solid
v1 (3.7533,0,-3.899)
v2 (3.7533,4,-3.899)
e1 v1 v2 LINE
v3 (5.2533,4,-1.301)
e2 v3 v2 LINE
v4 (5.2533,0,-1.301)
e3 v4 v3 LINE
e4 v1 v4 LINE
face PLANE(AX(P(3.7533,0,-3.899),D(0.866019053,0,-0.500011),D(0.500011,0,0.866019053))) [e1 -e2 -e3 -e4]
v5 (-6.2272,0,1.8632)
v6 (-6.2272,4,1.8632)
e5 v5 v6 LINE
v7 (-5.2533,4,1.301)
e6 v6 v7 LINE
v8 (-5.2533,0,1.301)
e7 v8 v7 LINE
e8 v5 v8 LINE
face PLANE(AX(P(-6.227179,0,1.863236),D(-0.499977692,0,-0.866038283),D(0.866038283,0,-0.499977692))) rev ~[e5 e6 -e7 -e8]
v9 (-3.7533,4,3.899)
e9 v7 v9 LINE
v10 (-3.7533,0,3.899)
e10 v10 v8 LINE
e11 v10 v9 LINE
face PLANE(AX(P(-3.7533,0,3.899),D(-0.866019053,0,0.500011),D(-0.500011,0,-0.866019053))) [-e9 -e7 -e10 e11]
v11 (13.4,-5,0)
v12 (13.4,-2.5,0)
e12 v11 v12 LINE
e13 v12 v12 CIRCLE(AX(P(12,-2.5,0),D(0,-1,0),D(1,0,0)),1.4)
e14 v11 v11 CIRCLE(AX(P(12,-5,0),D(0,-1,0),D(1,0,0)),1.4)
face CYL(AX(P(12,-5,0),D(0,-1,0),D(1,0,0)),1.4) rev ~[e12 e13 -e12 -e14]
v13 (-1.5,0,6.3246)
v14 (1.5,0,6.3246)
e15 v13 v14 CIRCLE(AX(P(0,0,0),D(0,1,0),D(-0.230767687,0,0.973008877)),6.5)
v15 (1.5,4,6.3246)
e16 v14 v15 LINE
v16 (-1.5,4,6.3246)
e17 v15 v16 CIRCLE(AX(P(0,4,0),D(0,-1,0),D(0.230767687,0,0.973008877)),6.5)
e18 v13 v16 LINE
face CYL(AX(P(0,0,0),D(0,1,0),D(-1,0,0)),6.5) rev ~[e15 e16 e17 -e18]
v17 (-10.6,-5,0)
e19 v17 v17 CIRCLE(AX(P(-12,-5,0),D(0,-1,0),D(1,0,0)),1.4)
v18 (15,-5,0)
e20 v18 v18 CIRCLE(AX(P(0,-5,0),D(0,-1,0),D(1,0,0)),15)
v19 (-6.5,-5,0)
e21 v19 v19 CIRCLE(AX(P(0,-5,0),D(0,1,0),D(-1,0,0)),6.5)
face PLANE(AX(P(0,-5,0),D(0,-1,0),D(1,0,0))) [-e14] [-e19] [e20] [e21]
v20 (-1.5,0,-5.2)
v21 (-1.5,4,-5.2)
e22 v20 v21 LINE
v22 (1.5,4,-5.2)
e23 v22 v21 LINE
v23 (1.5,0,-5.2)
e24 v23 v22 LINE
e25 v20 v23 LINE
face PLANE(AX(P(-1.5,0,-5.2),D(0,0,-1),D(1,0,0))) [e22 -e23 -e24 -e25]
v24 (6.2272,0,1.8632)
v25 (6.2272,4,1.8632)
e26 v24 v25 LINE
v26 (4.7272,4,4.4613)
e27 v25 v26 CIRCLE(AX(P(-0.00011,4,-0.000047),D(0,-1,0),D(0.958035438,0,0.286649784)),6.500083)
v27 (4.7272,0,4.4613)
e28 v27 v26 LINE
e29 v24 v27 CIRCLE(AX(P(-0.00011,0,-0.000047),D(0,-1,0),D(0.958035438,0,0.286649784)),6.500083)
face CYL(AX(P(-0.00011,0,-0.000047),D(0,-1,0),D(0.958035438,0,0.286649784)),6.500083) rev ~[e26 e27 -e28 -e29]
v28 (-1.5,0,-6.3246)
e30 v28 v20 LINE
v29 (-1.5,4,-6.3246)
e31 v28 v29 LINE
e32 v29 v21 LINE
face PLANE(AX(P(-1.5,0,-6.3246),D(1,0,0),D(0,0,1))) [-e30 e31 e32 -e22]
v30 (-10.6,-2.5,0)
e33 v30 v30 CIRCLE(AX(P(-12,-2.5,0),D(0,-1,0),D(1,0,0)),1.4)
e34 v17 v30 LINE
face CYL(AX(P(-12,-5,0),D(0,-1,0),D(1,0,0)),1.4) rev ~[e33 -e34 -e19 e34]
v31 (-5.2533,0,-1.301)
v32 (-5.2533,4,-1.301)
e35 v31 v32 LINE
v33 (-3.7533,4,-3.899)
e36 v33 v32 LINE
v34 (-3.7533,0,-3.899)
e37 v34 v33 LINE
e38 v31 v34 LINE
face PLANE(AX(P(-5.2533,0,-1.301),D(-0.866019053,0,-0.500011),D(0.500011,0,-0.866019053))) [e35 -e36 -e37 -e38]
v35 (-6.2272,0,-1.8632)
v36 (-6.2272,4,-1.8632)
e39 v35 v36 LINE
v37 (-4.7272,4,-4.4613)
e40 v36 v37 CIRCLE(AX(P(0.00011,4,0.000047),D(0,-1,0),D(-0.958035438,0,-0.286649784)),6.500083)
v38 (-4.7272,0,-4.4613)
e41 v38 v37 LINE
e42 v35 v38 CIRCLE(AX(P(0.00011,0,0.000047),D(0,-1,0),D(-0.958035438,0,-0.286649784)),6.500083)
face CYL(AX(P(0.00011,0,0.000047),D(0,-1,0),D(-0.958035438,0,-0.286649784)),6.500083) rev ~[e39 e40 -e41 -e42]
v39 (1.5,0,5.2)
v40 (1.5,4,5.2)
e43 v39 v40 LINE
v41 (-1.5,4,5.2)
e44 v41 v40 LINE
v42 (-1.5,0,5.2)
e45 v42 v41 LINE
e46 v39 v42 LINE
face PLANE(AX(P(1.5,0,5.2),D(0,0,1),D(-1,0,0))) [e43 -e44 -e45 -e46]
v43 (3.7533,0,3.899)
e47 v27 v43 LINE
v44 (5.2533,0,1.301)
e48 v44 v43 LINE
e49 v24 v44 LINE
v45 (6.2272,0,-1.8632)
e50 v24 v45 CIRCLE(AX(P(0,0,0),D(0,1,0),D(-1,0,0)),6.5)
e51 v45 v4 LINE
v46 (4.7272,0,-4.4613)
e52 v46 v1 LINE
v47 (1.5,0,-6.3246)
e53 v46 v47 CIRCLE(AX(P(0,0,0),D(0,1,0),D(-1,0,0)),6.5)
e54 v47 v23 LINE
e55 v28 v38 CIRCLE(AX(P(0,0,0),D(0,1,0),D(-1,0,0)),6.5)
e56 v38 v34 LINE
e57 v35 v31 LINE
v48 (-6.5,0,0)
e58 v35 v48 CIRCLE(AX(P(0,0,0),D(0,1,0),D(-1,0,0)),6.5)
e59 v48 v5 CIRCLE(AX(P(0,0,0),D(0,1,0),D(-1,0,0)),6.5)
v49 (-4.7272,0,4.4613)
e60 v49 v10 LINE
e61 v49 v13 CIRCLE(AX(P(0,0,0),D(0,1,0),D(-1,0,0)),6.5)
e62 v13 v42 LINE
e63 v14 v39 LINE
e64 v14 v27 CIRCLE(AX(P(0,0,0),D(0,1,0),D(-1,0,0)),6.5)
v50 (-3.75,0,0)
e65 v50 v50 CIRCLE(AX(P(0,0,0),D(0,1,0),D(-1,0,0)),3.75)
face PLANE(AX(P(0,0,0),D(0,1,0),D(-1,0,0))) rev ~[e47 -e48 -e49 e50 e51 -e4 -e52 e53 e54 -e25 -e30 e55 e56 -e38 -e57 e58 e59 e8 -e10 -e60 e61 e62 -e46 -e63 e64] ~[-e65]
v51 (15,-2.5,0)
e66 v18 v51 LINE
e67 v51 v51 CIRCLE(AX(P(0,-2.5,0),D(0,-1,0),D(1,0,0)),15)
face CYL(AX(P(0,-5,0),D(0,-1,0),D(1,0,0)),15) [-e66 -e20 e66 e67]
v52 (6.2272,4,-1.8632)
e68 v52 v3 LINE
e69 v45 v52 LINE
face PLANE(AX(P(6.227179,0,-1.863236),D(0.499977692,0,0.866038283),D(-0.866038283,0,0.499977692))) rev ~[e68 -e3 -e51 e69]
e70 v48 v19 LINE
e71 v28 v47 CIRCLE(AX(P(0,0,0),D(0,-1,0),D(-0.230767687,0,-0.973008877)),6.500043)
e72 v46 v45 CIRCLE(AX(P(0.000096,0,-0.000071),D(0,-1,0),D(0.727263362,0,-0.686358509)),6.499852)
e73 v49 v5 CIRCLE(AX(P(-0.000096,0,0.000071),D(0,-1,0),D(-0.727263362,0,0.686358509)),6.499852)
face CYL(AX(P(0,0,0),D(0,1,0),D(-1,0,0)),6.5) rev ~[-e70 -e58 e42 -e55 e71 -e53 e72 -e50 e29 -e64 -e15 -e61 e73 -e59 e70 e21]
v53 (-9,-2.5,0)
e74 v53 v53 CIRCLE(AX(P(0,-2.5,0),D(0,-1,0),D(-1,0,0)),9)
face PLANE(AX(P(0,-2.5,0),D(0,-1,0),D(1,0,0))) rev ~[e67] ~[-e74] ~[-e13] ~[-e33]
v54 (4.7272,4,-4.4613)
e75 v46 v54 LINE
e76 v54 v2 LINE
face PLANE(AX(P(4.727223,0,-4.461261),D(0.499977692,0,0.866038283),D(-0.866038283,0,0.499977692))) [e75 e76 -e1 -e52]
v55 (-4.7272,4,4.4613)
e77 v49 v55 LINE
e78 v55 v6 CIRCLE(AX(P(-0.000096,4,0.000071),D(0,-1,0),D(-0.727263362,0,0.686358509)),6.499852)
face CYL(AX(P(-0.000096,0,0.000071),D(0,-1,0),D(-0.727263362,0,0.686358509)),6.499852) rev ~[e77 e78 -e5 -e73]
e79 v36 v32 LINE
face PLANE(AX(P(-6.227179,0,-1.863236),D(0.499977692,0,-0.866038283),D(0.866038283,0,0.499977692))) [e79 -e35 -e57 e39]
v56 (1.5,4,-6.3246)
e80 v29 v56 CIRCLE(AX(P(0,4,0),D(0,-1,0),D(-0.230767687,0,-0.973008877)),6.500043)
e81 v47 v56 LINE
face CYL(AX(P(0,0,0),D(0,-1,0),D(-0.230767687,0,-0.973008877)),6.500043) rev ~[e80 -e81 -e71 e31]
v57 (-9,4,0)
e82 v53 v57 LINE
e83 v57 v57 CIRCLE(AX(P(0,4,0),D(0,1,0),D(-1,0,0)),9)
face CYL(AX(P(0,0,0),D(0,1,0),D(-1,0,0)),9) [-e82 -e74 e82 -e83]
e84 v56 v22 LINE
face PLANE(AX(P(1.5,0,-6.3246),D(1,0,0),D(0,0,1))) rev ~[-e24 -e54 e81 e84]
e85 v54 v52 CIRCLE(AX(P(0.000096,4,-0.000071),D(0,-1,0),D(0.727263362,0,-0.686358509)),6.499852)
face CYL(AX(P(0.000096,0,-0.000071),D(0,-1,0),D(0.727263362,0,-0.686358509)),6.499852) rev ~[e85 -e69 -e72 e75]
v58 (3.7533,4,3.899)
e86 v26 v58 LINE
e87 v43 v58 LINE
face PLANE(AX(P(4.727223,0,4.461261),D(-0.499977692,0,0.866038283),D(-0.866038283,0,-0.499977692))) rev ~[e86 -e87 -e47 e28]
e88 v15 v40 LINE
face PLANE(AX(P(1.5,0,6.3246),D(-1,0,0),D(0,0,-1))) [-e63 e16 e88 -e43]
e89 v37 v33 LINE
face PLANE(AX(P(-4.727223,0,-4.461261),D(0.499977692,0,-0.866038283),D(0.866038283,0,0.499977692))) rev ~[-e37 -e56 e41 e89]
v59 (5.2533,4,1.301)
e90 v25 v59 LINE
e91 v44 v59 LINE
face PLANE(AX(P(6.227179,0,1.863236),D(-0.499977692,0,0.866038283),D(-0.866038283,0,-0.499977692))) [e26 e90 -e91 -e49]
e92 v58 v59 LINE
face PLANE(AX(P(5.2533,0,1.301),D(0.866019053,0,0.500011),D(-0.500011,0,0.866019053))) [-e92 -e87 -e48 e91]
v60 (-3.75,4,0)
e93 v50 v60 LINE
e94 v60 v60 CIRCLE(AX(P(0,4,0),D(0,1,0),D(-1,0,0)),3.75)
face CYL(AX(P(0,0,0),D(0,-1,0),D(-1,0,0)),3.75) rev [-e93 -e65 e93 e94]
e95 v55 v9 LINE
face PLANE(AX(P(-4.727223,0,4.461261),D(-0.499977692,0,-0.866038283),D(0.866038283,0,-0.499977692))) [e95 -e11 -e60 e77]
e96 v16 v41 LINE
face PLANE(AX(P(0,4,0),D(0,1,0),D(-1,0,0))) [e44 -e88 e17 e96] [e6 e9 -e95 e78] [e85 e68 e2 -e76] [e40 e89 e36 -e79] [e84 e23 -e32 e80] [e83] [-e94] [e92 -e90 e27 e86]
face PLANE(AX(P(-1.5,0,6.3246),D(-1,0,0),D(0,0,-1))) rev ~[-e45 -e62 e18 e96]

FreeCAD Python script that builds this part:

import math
import FreeCAD as App
import Part
import Sketcher

V = App.Vector
Q = App.Units.Quantity

doc = App.newDocument("Part")
body = doc.addObject("PartDesign::Body", "Body")

# Sketch on XZ plane
sketch1 = body.newObject("Sketcher::SketchObject", "Sketch")
sketch1.AttachmentSupport = (doc.getObject("XZ_Plane"), [""])
sketch1.MapMode = "FlatFace"
sketch1.addGeometry(Part.Circle(V(0, 0, 0), V(0, 0, 1), 9), False)
sketch1.addGeometry(Part.Circle(V(0, 0, 0), V(0, 0, 1), 3.75), False)
sketch1.addConstraint(Sketcher.Constraint("Coincident", 0, 3, -1, 1))
sketch1.addConstraint(Sketcher.Constraint("Coincident", 1, 3, -1, 1))
sketch1.addConstraint(Sketcher.Constraint("Diameter", 1, Q("7.5 mm")))
sketch1.addConstraint(Sketcher.Constraint("Diameter", 0, Q("18 mm")))
pad1 = body.newObject("PartDesign::Pad", "Pad")
pad1.Profile = sketch1
pad1.Length = 4
pad1.Reversed = True

# Sketch on XZ plane
sketch2 = body.newObject("Sketcher::SketchObject", "Sketch001")
sketch2.AttachmentSupport = (doc.getObject("XZ_Plane"), [""])
sketch2.MapMode = "FlatFace"
sketch2.addGeometry(Part.Circle(V(0, 0, 0), V(0, 0, 1), 9), False)
sketch2.addGeometry(Part.Circle(V(0, 0, 0), V(0, 0, 1), 6.5), False)
sketch2.addConstraint(Sketcher.Constraint("Coincident", 0, 3, -1, 1))
sketch2.addConstraint(Sketcher.Constraint("Coincident", 1, 3, -1, 1))
sketch2.addConstraint(Sketcher.Constraint("Diameter", 1, Q("13 mm")))
sketch2.addConstraint(Sketcher.Constraint("Diameter", 0, Q("18 mm")))
pad2 = body.newObject("PartDesign::Pad", "Pad001")
pad2.Profile = sketch2
pad2.Length = 5

# Sketch on XZ plane
sketch3 = body.newObject("Sketcher::SketchObject", "Sketch002")
sketch3.AttachmentSupport = (doc.getObject("XZ_Plane"), [""])
sketch3.MapMode = "FlatFace"
sketch3.addGeometry(Part.LineSegment(V(5.2533, 1.301, 0), V(6.227179, 1.863236, 0)), False)
sketch3.addGeometry(Part.ArcOfCircle(Part.Circle(V(0, 0, 0), V(0, 0, 1), 6.500043), math.radians(16.657367), math.radians(43.342417)), False)
sketch3.addGeometry(Part.LineSegment(V(4.727223, 4.461261, 0), V(3.7533, 3.899, 0)), False)
sketch3.addGeometry(Part.LineSegment(V(3.7533, 3.899, 0), V(5.2533, 1.301, 0)), False)
sketch3.addGeometry(Part.ArcOfCircle(Part.Circle(V(0, 0, 0), V(0, 0, 1), 6.499964), math.radians(-43.342417), math.radians(-16.657367)), False)
sketch3.addGeometry(Part.LineSegment(V(6.227179, -1.863236, 0), V(5.2533, -1.301, 0)), False)
sketch3.addGeometry(Part.LineSegment(V(5.2533, -1.301, 0), V(3.7533, -3.899, 0)), False)
sketch3.addGeometry(Part.LineSegment(V(3.7533, -3.899, 0), V(4.727223, -4.461261, 0)), False)
sketch3.addGeometry(Part.LineSegment(V(1.5, 5.2, 0), V(1.5, 6.3246, 0)), False)
sketch3.addGeometry(Part.ArcOfCircle(Part.Circle(V(0, 0, 0), V(0, 0, 1), 6.5), math.radians(76.657727), math.radians(103.342273)), False)
sketch3.addGeometry(Part.LineSegment(V(-1.5, 6.3246, 0), V(-1.5, 5.2, 0)), False)
sketch3.addGeometry(Part.LineSegment(V(-1.5, 5.2, 0), V(1.5, 5.2, 0)), False)
sketch3.addGeometry(Part.ArcOfCircle(Part.Circle(V(0, 0, 0), V(0, 0, 1), 6.500043), math.radians(-103.342273), math.radians(-76.657727)), False)
sketch3.addGeometry(Part.LineSegment(V(1.5, -6.3246, 0), V(1.5, -5.2, 0)), False)
sketch3.addGeometry(Part.LineSegment(V(1.5, -5.2, 0), V(-1.5, -5.2, 0)), False)
sketch3.addGeometry(Part.LineSegment(V(-1.5, -5.2, 0), V(-1.5, -6.3246, 0)), False)
sketch3.addGeometry(Part.ArcOfCircle(Part.Circle(V(0, 0, 0), V(0, 0, 1), 6.500043), math.radians(-163.342633), math.radians(-136.657583)), False)
sketch3.addGeometry(Part.LineSegment(V(-4.727223, -4.461261, 0), V(-3.7533, -3.899, 0)), False)
sketch3.addGeometry(Part.LineSegment(V(-3.7533, -3.899, 0), V(-5.2533, -1.301, 0)), False)
sketch3.addGeometry(Part.LineSegment(V(-5.2533, -1.301, 0), V(-6.227179, -1.863236, 0)), False)
sketch3.addGeometry(Part.LineSegment(V(-3.7533, 3.899, 0), V(-4.727223, 4.461261, 0)), False)
sketch3.addGeometry(Part.ArcOfCircle(Part.Circle(V(0, 0, 0), V(0, 0, 1), 6.499964), math.radians(136.657583), math.radians(163.342633)), False)
sketch3.addGeometry(Part.LineSegment(V(-6.227179, 1.863236, 0), V(-5.2533, 1.301, 0)), False)
sketch3.addGeometry(Part.LineSegment(V(-5.2533, 1.301, 0), V(-3.7533, 3.899, 0)), False)
sketch3.addConstraint(Sketcher.Constraint("Coincident", 0, 2, 1, 1))
sketch3.addConstraint(Sketcher.Constraint("Coincident", 1, 2, 2, 1))
sketch3.addConstraint(Sketcher.Constraint("Coincident", 2, 2, 3, 1))
sketch3.addConstraint(Sketcher.Constraint("Coincident", 3, 2, 0, 1))
sketch3.addConstraint(Sketcher.Constraint("Coincident", 4, 2, 5, 1))
sketch3.addConstraint(Sketcher.Constraint("Coincident", 5, 2, 6, 1))
sketch3.addConstraint(Sketcher.Constraint("Coincident", 6, 2, 7, 1))
sketch3.addConstraint(Sketcher.Constraint("Coincident", 7, 2, 4, 1))
sketch3.addConstraint(Sketcher.Constraint("Coincident", 8, 2, 9, 1))
sketch3.addConstraint(Sketcher.Constraint("Coincident", 9, 2, 10, 1))
sketch3.addConstraint(Sketcher.Constraint("Coincident", 10, 2, 11, 1))
sketch3.addConstraint(Sketcher.Constraint("Coincident", 11, 2, 8, 1))
sketch3.addConstraint(Sketcher.Constraint("Coincident", 12, 2, 13, 1))
sketch3.addConstraint(Sketcher.Constraint("Coincident", 13, 2, 14, 1))
sketch3.addConstraint(Sketcher.Constraint("Coincident", 14, 2, 15, 1))
sketch3.addConstraint(Sketcher.Constraint("Coincident", 15, 2, 12, 1))
sketch3.addConstraint(Sketcher.Constraint("Coincident", 16, 2, 17, 1))
sketch3.addConstraint(Sketcher.Constraint("Coincident", 17, 2, 18, 1))
sketch3.addConstraint(Sketcher.Constraint("Coincident", 18, 2, 19, 1))
sketch3.addConstraint(Sketcher.Constraint("Coincident", 19, 2, 16, 1))
sketch3.addConstraint(Sketcher.Constraint("Coincident", 20, 2, 21, 1))
sketch3.addConstraint(Sketcher.Constraint("Coincident", 21, 2, 22, 1))
sketch3.addConstraint(Sketcher.Constraint("Coincident", 22, 2, 23, 1))
sketch3.addConstraint(Sketcher.Constraint("Coincident", 23, 2, 20, 1))
sketch3.addConstraint(Sketcher.Constraint("Vertical", 8))
sketch3.addConstraint(Sketcher.Constraint("Vertical", 10))
sketch3.addConstraint(Sketcher.Constraint("Horizontal", 11))
sketch3.addConstraint(Sketcher.Constraint("Vertical", 13))
sketch3.addConstraint(Sketcher.Constraint("Horizontal", 14))
sketch3.addConstraint(Sketcher.Constraint("Vertical", 15))
sketch3.addConstraint(Sketcher.Constraint("Coincident", 1, 3, -1, 1))
sketch3.addConstraint(Sketcher.Constraint("Coincident", 4, 3, -1, 1))
sketch3.addConstraint(Sketcher.Constraint("Coincident", 9, 3, -1, 1))
sketch3.addConstraint(Sketcher.Constraint("Coincident", 12, 3, -1, 1))
sketch3.addConstraint(Sketcher.Constraint("Coincident", 16, 3, -1, 1))
sketch3.addConstraint(Sketcher.Constraint("Coincident", 21, 3, -1, 1))
sketch3.addConstraint(Sketcher.Constraint("Equal", 1, 4))
sketch3.addConstraint(Sketcher.Constraint("Equal", 4, 9))
sketch3.addConstraint(Sketcher.Constraint("Equal", 9, 12))
sketch3.addConstraint(Sketcher.Constraint("Equal", 12, 16))
sketch3.addConstraint(Sketcher.Constraint("Equal", 16, 21))
sketch3.addConstraint(Sketcher.Constraint("Symmetric", 10, 2, 13, 2, -1, 1))
sketch3.addConstraint(Sketcher.Constraint("Symmetric", 2, 2, 17, 2, -1, 1))
sketch3.addConstraint(Sketcher.Constraint("Symmetric", 3, 2, 18, 2, -1, 1))
sketch3.addConstraint(Sketcher.Constraint("Symmetric", 5, 2, 22, 2, -1, 1))
sketch3.addConstraint(Sketcher.Constraint("Symmetric", 6, 2, 23, 2, -1, 1))
sketch3.addConstraint(Sketcher.Constraint("Symmetric", 6, 2, 17, 2, -2))
sketch3.addConstraint(Sketcher.Constraint("Symmetric", 5, 2, 18, 2, -2))
sketch3.addConstraint(Sketcher.Constraint("Parallel", 0, 2))
sketch3.addConstraint(Sketcher.Constraint("Perpendicular", 2, 3))
sketch3.addConstraint(Sketcher.Constraint("Perpendicular", 5, 6))
sketch3.addConstraint(Sketcher.Constraint("Perpendicular", 6, 7))
sketch3.addConstraint(Sketcher.Constraint("Perpendicular", 3, 17))
sketch3.addConstraint(Sketcher.Constraint("Perpendicular", 18, 19))
sketch3.addConstraint(Sketcher.Constraint("Parallel", 7, 20))
sketch3.addConstraint(Sketcher.Constraint("Parallel", 20, 22))
sketch3.addConstraint(Sketcher.Constraint("Horizontal", 8, 2, 9, 2))
sketch3.addConstraint(Sketcher.Constraint("Horizontal", 12, 2, 15, 2))
sketch3.addConstraint(Sketcher.Constraint("Equal", 0, 2))
sketch3.addConstraint(Sketcher.Constraint("DistanceX", -1, 1, 8, 2, Q("1.5 mm")))
sketch3.addConstraint(Sketcher.Constraint("DistanceY", -1, 1, 10, 2, Q("5.2 mm")))
sketch3.addConstraint(Sketcher.Constraint("Radius", 1, Q("6.5 mm")))
sketch3.addConstraint(Sketcher.Constraint("DistanceX", 1, 2, 0, 2, Q("1.5 mm")))
sketch3.addConstraint(Sketcher.Constraint("Angle", 3, Q("-59.9993 deg")))
sketch3.addConstraint(Sketcher.Constraint("DistanceY", -1, 1, 2, 2, Q("3.899 mm")))
pocket1 = body.newObject("PartDesign::Pocket", "Pocket")
pocket1.Profile = sketch3
pocket1.Length = 4

# Sketch on XZ plane
sketch4 = body.newObject("Sketcher::SketchObject", "Sketch003")
sketch4.AttachmentSupport = (doc.getObject("XZ_Plane"), [""])
sketch4.MapMode = "FlatFace"
sketch4.AttachmentOffset = App.Placement(V(0, 0, 5), App.Rotation())
sketch4.addGeometry(Part.Circle(V(0, 0, 0), V(0, 0, 1), 15), False)
sketch4.addGeometry(Part.Circle(V(-12, 0, 0), V(0, 0, 1), 1.4), False)
sketch4.addGeometry(Part.Circle(V(0, 0, 0), V(0, 0, 1), 9), False)
sketch4.addGeometry(Part.Circle(V(12, 0, 0), V(0, 0, 1), 1.4), False)
sketch4.addConstraint(Sketcher.Constraint("Coincident", 0, 3, -1, 1))
sketch4.addConstraint(Sketcher.Constraint("Coincident", 2, 3, -1, 1))
sketch4.addConstraint(Sketcher.Constraint("Equal", 1, 3))
sketch4.addConstraint(Sketcher.Constraint("Symmetric", 1, 3, 3, 3, -1, 1))
sketch4.addConstraint(Sketcher.Constraint("PointOnObject", 1, 3, -1))
sketch4.addConstraint(Sketcher.Constraint("Diameter", 0, Q("30 mm")))
sketch4.addConstraint(Sketcher.Constraint("Diameter", 1, Q("2.8 mm")))
sketch4.addConstraint(Sketcher.Constraint("Diameter", 2, Q("18 mm")))
sketch4.addConstraint(Sketcher.Constraint("DistanceX", 1, 3, -1, 1, Q("12 mm")))
pad3 = body.newObject("PartDesign::Pad", "Pad002")
pad3.Profile = sketch4
pad3.Length = 2.5
pad3.Reversed = True

doc.recompute()
